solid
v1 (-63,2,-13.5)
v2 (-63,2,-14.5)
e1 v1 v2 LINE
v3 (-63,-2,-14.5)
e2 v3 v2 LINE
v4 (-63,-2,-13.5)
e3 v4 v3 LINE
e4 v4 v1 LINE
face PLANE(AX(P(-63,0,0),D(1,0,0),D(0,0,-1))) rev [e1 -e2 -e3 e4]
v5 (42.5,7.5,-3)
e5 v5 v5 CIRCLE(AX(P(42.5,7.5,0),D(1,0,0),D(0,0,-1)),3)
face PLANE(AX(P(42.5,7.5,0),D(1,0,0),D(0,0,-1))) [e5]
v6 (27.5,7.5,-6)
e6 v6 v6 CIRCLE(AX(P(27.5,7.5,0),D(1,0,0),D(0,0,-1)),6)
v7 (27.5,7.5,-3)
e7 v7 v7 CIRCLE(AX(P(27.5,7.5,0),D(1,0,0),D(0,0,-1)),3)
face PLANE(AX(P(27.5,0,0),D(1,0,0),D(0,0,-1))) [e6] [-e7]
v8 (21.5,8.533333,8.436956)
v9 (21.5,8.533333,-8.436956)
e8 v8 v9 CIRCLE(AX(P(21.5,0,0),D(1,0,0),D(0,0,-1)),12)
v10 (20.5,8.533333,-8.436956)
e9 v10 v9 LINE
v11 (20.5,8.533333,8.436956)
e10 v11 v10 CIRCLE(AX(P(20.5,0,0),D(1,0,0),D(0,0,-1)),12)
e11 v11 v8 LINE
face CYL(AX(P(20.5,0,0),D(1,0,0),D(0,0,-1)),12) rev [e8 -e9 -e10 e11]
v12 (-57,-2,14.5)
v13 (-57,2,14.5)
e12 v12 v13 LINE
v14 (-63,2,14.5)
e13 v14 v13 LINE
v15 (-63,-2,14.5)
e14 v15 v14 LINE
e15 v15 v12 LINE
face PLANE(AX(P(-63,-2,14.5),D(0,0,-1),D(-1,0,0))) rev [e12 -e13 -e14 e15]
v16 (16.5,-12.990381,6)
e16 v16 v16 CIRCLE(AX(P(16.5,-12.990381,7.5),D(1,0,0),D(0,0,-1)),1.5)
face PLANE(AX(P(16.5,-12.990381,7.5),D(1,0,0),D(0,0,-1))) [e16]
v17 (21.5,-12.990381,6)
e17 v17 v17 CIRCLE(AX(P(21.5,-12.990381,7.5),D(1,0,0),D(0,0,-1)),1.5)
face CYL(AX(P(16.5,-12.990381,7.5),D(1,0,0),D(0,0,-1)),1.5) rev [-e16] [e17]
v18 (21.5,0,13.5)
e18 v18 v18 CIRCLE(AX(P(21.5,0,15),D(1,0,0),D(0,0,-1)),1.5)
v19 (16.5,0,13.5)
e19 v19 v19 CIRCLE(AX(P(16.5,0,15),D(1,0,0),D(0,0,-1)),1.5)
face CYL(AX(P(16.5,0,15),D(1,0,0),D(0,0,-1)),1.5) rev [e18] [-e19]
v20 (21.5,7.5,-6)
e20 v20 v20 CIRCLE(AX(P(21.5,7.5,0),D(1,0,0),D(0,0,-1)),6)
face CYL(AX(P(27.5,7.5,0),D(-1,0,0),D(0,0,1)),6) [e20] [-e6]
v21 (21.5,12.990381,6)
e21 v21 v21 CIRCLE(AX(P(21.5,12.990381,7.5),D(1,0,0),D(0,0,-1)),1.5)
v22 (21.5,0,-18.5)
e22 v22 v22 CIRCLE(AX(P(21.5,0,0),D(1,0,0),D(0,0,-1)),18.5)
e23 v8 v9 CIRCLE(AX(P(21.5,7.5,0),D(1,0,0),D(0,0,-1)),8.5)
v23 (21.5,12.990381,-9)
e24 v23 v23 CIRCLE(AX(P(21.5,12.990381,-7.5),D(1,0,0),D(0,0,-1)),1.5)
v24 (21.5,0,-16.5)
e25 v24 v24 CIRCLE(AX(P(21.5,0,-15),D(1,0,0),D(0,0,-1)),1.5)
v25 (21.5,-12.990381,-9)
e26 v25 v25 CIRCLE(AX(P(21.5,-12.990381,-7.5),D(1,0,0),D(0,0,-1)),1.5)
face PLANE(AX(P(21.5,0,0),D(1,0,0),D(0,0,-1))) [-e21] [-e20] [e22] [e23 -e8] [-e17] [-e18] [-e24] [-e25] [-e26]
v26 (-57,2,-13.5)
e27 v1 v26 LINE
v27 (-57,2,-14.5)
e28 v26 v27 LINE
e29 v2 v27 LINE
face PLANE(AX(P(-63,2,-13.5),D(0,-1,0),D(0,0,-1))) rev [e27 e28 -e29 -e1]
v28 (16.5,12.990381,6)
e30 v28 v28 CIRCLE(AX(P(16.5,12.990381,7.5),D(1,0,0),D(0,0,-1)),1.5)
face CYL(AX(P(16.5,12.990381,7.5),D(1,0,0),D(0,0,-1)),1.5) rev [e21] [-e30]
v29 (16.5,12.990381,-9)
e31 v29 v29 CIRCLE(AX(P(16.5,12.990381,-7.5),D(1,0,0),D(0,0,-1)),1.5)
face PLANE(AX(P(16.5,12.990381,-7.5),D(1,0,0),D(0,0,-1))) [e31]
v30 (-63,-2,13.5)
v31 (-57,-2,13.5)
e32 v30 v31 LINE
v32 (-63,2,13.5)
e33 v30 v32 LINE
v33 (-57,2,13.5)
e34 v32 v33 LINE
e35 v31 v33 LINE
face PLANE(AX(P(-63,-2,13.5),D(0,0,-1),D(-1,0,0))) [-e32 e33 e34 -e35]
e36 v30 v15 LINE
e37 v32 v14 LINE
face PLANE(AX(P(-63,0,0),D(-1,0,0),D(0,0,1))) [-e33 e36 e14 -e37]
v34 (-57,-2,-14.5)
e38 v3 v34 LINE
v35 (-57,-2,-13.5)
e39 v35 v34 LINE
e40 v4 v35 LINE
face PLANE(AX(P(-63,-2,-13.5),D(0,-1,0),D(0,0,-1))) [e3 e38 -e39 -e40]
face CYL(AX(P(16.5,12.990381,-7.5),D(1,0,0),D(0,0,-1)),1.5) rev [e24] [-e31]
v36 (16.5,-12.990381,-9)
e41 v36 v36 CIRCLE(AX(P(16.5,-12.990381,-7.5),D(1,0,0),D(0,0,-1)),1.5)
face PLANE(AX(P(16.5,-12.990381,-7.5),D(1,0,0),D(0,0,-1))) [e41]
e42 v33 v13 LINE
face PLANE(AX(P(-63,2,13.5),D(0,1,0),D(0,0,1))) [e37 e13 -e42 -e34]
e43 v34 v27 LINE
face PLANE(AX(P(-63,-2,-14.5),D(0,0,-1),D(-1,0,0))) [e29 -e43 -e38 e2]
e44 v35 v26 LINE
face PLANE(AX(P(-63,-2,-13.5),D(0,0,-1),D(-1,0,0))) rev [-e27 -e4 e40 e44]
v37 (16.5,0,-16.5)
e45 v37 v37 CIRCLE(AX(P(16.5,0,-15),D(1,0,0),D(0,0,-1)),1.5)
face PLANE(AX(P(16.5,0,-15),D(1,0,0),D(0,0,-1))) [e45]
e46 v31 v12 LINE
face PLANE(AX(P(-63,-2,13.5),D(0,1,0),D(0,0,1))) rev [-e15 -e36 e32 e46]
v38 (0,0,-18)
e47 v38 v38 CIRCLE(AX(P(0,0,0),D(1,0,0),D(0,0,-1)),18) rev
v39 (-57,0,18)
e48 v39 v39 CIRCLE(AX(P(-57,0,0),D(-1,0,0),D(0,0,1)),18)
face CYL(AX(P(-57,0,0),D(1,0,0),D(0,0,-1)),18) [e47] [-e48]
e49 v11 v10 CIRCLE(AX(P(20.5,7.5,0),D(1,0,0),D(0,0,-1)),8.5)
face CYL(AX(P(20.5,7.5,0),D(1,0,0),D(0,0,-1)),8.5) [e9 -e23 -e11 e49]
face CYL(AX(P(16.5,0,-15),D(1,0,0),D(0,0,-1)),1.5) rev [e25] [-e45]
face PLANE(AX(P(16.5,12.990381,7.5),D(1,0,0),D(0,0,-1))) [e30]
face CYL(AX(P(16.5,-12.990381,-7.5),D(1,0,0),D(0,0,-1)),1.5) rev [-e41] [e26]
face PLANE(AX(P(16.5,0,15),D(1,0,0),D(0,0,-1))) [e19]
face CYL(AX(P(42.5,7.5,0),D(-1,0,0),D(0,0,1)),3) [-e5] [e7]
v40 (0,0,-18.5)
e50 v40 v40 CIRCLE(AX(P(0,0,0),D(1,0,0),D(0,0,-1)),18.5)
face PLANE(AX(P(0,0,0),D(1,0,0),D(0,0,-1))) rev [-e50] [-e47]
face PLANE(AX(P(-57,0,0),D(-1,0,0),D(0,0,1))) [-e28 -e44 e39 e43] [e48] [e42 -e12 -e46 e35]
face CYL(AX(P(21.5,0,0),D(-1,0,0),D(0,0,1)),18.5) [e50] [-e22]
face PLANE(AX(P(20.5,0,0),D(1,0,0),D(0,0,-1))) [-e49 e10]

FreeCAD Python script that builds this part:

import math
import FreeCAD as App
import Part
import Sketcher
from FreeCAD import Vector

doc = App.newDocument("Part")
body = doc.addObject("PartDesign::Body", "Body")

# Sketch on YZ plane
sketch1 = body.newObject("Sketcher::SketchObject", "Sketch")
sketch1.AttachmentSupport = (doc.getObject("YZ_Plane"), [""])
sketch1.MapMode = "FlatFace"
sketch1.addGeometry(Part.Circle(Vector(0, 0, 0), Vector(0, 0, 1), 18), False)
sketch1.addConstraint([
    Sketcher.Constraint("Coincident", 0, 3, -1, 1),
    Sketcher.Constraint("Diameter", 0, 37.0),
])
pad1 = body.newObject("PartDesign::Pad", "Pad")
pad1.Profile = sketch1
pad1.Length = 21.5

# Sketch on YZ plane
sketch2 = body.newObject("Sketcher::SketchObject", "Sketch001")
sketch2.AttachmentSupport = (doc.getObject("YZ_Plane"), [""])
sketch2.MapMode = "FlatFace"
sketch2.addGeometry(Part.Circle(Vector(0, 0, 0), Vector(0, 0, 1), 18), False)
sketch2.addConstraint([
    Sketcher.Constraint("Coincident", 0, 3, -1, 1),
    Sketcher.Constraint("Diameter", 0, 36.0),
])
pad2 = body.newObject("PartDesign::Pad", "Pad001")
pad2.Profile = sketch2
pad2.Length = 57
pad2.Reversed = True

# Sketch on YZ plane
sketch3 = body.newObject("Sketcher::SketchObject", "Sketch002")
sketch3.AttachmentSupport = (doc.getObject("YZ_Plane"), [""])
sketch3.MapMode = "FlatFace"
sketch3.AttachmentOffset = App.Placement(Vector(0, 0, -57), App.Rotation())
sketch3.addGeometry([
    Part.LineSegment(Vector(2, -14.5, 0), Vector(-2, -14.5, 0)),  # 0
    Part.LineSegment(Vector(-2, -14.5, 0), Vector(-2, -13.5, 0)),  # 1
    Part.LineSegment(Vector(-2, -13.5, 0), Vector(2, -13.5, 0)),  # 2
    Part.LineSegment(Vector(2, -13.5, 0), Vector(2, -14.5, 0)),  # 3
    Part.LineSegment(Vector(2, 13.5, 0), Vector(-2, 13.5, 0)),  # 4
    Part.LineSegment(Vector(-2, 13.5, 0), Vector(-2, 14.5, 0)),  # 5
    Part.LineSegment(Vector(-2, 14.5, 0), Vector(2, 14.5, 0)),  # 6
    Part.LineSegment(Vector(2, 14.5, 0), Vector(2, 13.5, 0)),  # 7
], False)
sketch3.addConstraint([
    Sketcher.Constraint("Coincident", 0, 2, 1, 1),
    Sketcher.Constraint("Coincident", 1, 2, 2, 1),
    Sketcher.Constraint("Coincident", 2, 2, 3, 1),
    Sketcher.Constraint("Coincident", 3, 2, 0, 1),
    Sketcher.Constraint("Coincident", 4, 2, 5, 1),
    Sketcher.Constraint("Coincident", 5, 2, 6, 1),
    Sketcher.Constraint("Coincident", 6, 2, 7, 1),
    Sketcher.Constraint("Coincident", 7, 2, 4, 1),
    Sketcher.Constraint("Horizontal", 0),
    Sketcher.Constraint("Vertical", 1),
    Sketcher.Constraint("Horizontal", 2),
    Sketcher.Constraint("Vertical", 3),
    Sketcher.Constraint("Horizontal", 4),
    Sketcher.Constraint("Vertical", 5),
    Sketcher.Constraint("Horizontal", 6),
    Sketcher.Constraint("Vertical", 7),
    Sketcher.Constraint("Symmetric", 2, 2, 4, 2, -1, 1),
    Sketcher.Constraint("Symmetric", 0, 2, 6, 2, -1, 1),
    Sketcher.Constraint("Vertical", 1, 2, 4, 2),
    Sketcher.Constraint("DistanceX", 0, 2, 0, 1, 4.0),
    Sketcher.Constraint("DistanceY", 1, 1, 1, 2, 1.0),
    Sketcher.Constraint("DistanceY", 1, 2, 4, 2, 27.0),
])
pad3 = body.newObject("PartDesign::Pad", "Pad002")
pad3.Profile = sketch3
pad3.Length = 6
pad3.Reversed = True

# Sketch on YZ plane
sketch4 = body.newObject("Sketcher::SketchObject", "Sketch003")
sketch4.AttachmentSupport = (doc.getObject("YZ_Plane"), [""])
sketch4.MapMode = "FlatFace"
sketch4.AttachmentOffset = App.Placement(Vector(0, 0, 21.5), App.Rotation())
sketch4.addGeometry(Part.Circle(Vector(8, 0, 0), Vector(0, 0, 1), 6), False)
sketch4.addConstraint([
    Sketcher.Constraint("PointOnObject", 0, 3, -1),
    Sketcher.Constraint("Diameter", 0, 12.0),
    Sketcher.Constraint("DistanceX", -1, 1, 0, 3, 7.5),
])
pad4 = body.newObject("PartDesign::Pad", "Pad003")
pad4.Profile = sketch4
pad4.Length = 6

# Sketch on YZ plane
sketch5 = body.newObject("Sketcher::SketchObject", "Sketch004")
sketch5.AttachmentSupport = (doc.getObject("YZ_Plane"), [""])
sketch5.MapMode = "FlatFace"
sketch5.AttachmentOffset = App.Placement(Vector(0, 0, 27.5), App.Rotation())
sketch5.addGeometry(Part.Circle(Vector(7.5, 0, 0), Vector(0, 0, 1), 3), False)
sketch5.addConstraint([
    Sketcher.Constraint("PointOnObject", 0, 3, -1),
    Sketcher.Constraint("Diameter", 0, 6.0),
    Sketcher.Constraint("DistanceX", -1, 1, 0, 3, 7.5),
])
pad5 = body.newObject("PartDesign::Pad", "Pad004")
pad5.Profile = sketch5
pad5.Length = 15

# Sketch on YZ plane
sketch6 = body.newObject("Sketcher::SketchObject", "Sketch005")
sketch6.AttachmentSupport = (doc.getObject("YZ_Plane"), [""])
sketch6.MapMode = "FlatFace"
sketch6.AttachmentOffset = App.Placement(Vector(0, 0, 21.5), App.Rotation())
sketch6.addGeometry([
    Part.ArcOfCircle(Part.Circle(Vector(0, 0, 0), Vector(0, 0, 1), 12), math.radians(45), math.radians(270)),
    Part.ArcOfCircle(Part.Circle(Vector(0, 0, 0), Vector(0, 0, 1), 12), math.radians(-90), math.radians(-45)),
    Part.ArcOfCircle(Part.Circle(Vector(7.5, 0, 0), Vector(0, 0, 1), 8.5), math.radians(-90), math.radians(-83.02)),
    Part.ArcOfCircle(Part.Circle(Vector(7.5, 0, 0), Vector(0, 0, 1), 8.5), math.radians(83), math.radians(270)),
], False)
sketch6.addConstraint([
    Sketcher.Constraint("Tangent", 0, 2, 1, 1),
    Sketcher.Constraint("Coincident", 1, 2, 2, 2),
    Sketcher.Constraint("Tangent", 2, 1, 3, 2),
    Sketcher.Constraint("Coincident", 3, 1, 0, 1),
    Sketcher.Constraint("Coincident", 0, 3, -1, 1),
    Sketcher.Constraint("Equal", 0, 1),
    Sketcher.Constraint("Equal", 2, 3),
    Sketcher.Constraint("PointOnObject", 2, 3, -1),
    Sketcher.Constraint("PointOnObject", 0, 2, -2),
    Sketcher.Constraint("Vertical", 3, 3, 2, 1),
    Sketcher.Constraint("Radius", 0, 12.0),
    Sketcher.Constraint("Radius", 2, 8.5),
    Sketcher.Constraint("DistanceX", -1, 1, 2, 3, 7.5),
])
pocket1 = body.newObject("PartDesign::Pocket", "Pocket")
pocket1.Profile = sketch6
pocket1.Length = 1

# Sketch on YZ plane
sketch7 = body.newObject("Sketcher::SketchObject", "Sketch006")
sketch7.AttachmentSupport = (doc.getObject("YZ_Plane"), [""])
sketch7.MapMode = "FlatFace"
sketch7.AttachmentOffset = App.Placement(Vector(0, 0, 21.5), App.Rotation())
sketch7.addGeometry([
    Part.Circle(Vector(0, 15, 0), Vector(0, 0, 1), 1.5),  # 0
    Part.Circle(Vector(13, 7.5, 0), Vector(0, 0, 1), 1.5),  # 1
    Part.Circle(Vector(13, -7.5, 0), Vector(0, 0, 1), 1.5),  # 2
    Part.Circle(Vector(0, -15, 0), Vector(0, 0, 1), 1.5),  # 3
    Part.Circle(Vector(-13, -7.5, 0), Vector(0, 0, 1), 1.5),  # 4
    Part.Circle(Vector(-13, 7.5, 0), Vector(0, 0, 1), 1.5),  # 5
], False)
sketch7.addConstraint([
    Sketcher.Constraint("Equal", 0, 1),
    Sketcher.Constraint("Equal", 1, 2),
    Sketcher.Constraint("Equal", 2, 3),
    Sketcher.Constraint("Equal", 3, 4),
    Sketcher.Constraint("Equal", 4, 5),
    Sketcher.Constraint("Symmetric", 0, 3, 3, 3, -1, 1),
    Sketcher.Constraint("Symmetric", 1, 3, 4, 3, -1, 1),
    Sketcher.Constraint("Symmetric", 2, 3, 5, 3, -1, 1),
    Sketcher.Constraint("Symmetric", 2, 3, 4, 3, -2),
    Sketcher.Constraint("PointOnObject", 0, 3, -2),
    Sketcher.Constraint("Diameter", 0, 3.0),
    Sketcher.Constraint("DistanceY", -1, 1, 0, 3, 15.0),
    Sketcher.Constraint("DistanceY", 2, 3, 1, 3, 15.0),
    Sketcher.Constraint("DistanceX", -1, 1, 1, 3, 12.990381),
])
pocket2 = body.newObject("PartDesign::Pocket", "Pocket001")
pocket2.Profile = sketch7
pocket2.Length = 5

doc.recompute()
